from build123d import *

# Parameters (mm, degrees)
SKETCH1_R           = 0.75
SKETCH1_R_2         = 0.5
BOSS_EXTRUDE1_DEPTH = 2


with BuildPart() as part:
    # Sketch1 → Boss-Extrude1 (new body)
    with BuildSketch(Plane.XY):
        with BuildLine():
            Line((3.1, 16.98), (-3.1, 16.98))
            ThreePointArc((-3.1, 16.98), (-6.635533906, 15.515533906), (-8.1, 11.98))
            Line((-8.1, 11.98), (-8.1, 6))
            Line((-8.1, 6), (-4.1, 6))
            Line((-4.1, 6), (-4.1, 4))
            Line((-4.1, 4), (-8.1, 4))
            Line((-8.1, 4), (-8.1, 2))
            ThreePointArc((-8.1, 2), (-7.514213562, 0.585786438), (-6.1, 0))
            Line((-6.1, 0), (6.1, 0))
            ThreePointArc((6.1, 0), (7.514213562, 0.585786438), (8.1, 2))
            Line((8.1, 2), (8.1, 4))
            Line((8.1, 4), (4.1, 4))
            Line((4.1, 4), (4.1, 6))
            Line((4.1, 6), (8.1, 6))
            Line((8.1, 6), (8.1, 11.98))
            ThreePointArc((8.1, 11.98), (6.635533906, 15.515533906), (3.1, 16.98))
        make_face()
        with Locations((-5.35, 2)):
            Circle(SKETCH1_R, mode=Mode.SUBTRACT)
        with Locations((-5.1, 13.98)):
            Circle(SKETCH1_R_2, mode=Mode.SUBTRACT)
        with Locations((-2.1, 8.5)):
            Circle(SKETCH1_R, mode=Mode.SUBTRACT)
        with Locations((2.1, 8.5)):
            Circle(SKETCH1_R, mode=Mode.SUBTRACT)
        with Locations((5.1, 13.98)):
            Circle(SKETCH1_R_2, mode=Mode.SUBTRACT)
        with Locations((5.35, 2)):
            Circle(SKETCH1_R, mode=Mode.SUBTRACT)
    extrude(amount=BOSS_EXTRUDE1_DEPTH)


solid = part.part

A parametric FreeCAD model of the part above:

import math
import FreeCAD as App
import Part
import Sketcher

V = App.Vector

doc = App.newDocument("Part")
body = doc.addObject("PartDesign::Body", "Body")

# Sketch on XY plane
sketch1 = doc.addObject("Sketcher::SketchObject", "Sketch")
body.addObject(sketch1)
sketch1.AttachmentSupport = (doc.XY_Plane, [""])
sketch1.MapMode = "FlatFace"
sketch1.addGeometry([
    Part.LineSegment(V(3.1, 16.98, 0), V(-3.1, 16.98, 0)),  # 0
    Part.ArcOfCircle(Part.Circle(V(-3.1, 11.98, 0), V(0, 0, 1), 5), math.radians(90), math.radians(180)),  # 1
    Part.LineSegment(V(-8.1, 11.98, 0), V(-8.1, 6, 0)),  # 2
    Part.LineSegment(V(-8.1, 6, 0), V(-4.1, 6, 0)),  # 3
    Part.LineSegment(V(-4.1, 6, 0), V(-4.1, 4, 0)),  # 4
    Part.LineSegment(V(-4.1, 4, 0), V(-8.1, 4, 0)),  # 5
    Part.LineSegment(V(-8.1, 4, 0), V(-8.1, 2, 0)),  # 6
    Part.ArcOfCircle(Part.Circle(V(-6.1, 2, 0), V(0, 0, 1), 2), math.radians(-180), math.radians(-90)),  # 7
    Part.LineSegment(V(-6.1, 0, 0), V(6.1, 0, 0)),  # 8
    Part.ArcOfCircle(Part.Circle(V(6.1, 2, 0), V(0, 0, 1), 2), math.radians(-90), math.radians(0)),  # 9
    Part.LineSegment(V(8.1, 2, 0), V(8.1, 4, 0)),  # 10
    Part.LineSegment(V(8.1, 4, 0), V(4.1, 4, 0)),  # 11
    Part.LineSegment(V(4.1, 4, 0), V(4.1, 6, 0)),  # 12
    Part.LineSegment(V(4.1, 6, 0), V(8.1, 6, 0)),  # 13
    Part.LineSegment(V(8.1, 6, 0), V(8.1, 11.98, 0)),  # 14
    Part.ArcOfCircle(Part.Circle(V(3.1, 11.98, 0), V(0, 0, 1), 5), math.radians(0), math.radians(90)),  # 15
    Part.Circle(V(-5.35, 2, 0), V(0, 0, 1), 0.75),  # 16
    Part.Circle(V(5.35, 2, 0), V(0, 0, 1), 0.75),  # 17
    Part.Circle(V(-2.1, 8.5, 0), V(0, 0, 1), 0.75),  # 18
    Part.Circle(V(-5.1, 13.98, 0), V(0, 0, 1), 0.5),  # 19
    Part.Circle(V(2.1, 8.5, 0), V(0, 0, 1), 0.75),  # 20
    Part.Circle(V(5.1, 13.98, 0), V(0, 0, 1), 0.5),  # 21
], False)
sketch1.addConstraint([
    Sketcher.Constraint("Tangent", 0, 2, 1, 1),
    Sketcher.Constraint("Tangent", 1, 2, 2, 1),
    Sketcher.Constraint("Coincident", 2, 2, 3, 1),
    Sketcher.Constraint("Coincident", 3, 2, 4, 1),
    Sketcher.Constraint("Coincident", 4, 2, 5, 1),
    Sketcher.Constraint("Coincident", 5, 2, 6, 1),
    Sketcher.Constraint("Tangent", 6, 2, 7, 1),
    Sketcher.Constraint("Tangent", 7, 2, 8, 1),
    Sketcher.Constraint("Tangent", 8, 2, 9, 1),
    Sketcher.Constraint("Tangent", 9, 2, 10, 1),
    Sketcher.Constraint("Coincident", 10, 2, 11, 1),
    Sketcher.Constraint("Coincident", 11, 2, 12, 1),
    Sketcher.Constraint("Coincident", 12, 2, 13, 1),
    Sketcher.Constraint("Coincident", 13, 2, 14, 1),
    Sketcher.Constraint("Tangent", 14, 2, 15, 1),
    Sketcher.Constraint("Tangent", 15, 2, 0, 1),
    Sketcher.Constraint("Horizontal", 0),
    Sketcher.Constraint("Vertical", 2),
    Sketcher.Constraint("Horizontal", 3),
    Sketcher.Constraint("Vertical", 4),
    Sketcher.Constraint("Horizontal", 5),
    Sketcher.Constraint("Vertical", 6),
    Sketcher.Constraint("Horizontal", 8),
    Sketcher.Constraint("Vertical", 10),
    Sketcher.Constraint("Horizontal", 11),
    Sketcher.Constraint("Vertical", 12),
    Sketcher.Constraint("Horizontal", 13),
    Sketcher.Constraint("Vertical", 14),
    Sketcher.Constraint("Equal", 7, 9),
    Sketcher.Constraint("Equal", 1, 15),
    Sketcher.Constraint("Equal", 16, 17),
    Sketcher.Constraint("Equal", 17, 18),
    Sketcher.Constraint("Equal", 18, 20),
    Sketcher.Constraint("Equal", 19, 21),
    Sketcher.Constraint("Symmetric", 7, 2, 8, 2, -1, 1),
    Sketcher.Constraint("Symmetric", 16, 3, 17, 3, -2),
    Sketcher.Constraint("Symmetric", 18, 3, 20, 3, -2),
    Sketcher.Constraint("Symmetric", 19, 3, 21, 3, -2),
    Sketcher.Constraint("Symmetric", 4, 2, 11, 2, -2),
    Sketcher.Constraint("Symmetric", 2, 2, 13, 2, -2),
    Sketcher.Constraint("Horizontal", 9, 3, 16, 3),
    Sketcher.Constraint("Vertical", 2, 2, 5, 2),
    Sketcher.Constraint("Equal", 4, 6),
    Sketcher.Constraint("Diameter", 19, 1.0),
    Sketcher.Constraint("Radius", 1, 5.0),
    Sketcher.Constraint("Radius", 7, 2.0),
    Sketcher.Constraint("Diameter", 16, 1.5),
    Sketcher.Constraint("DistanceX", 3, 1, 3, 2, 4.0),
    Sketcher.Constraint("DistanceY", 4, 2, 4, 1, 2.0),
    Sketcher.Constraint("DistanceX", 0, 2, 0, 1, 6.2),
    Sketcher.Constraint("DistanceX", 1, 3, 18, 3, 1.0),
    Sketcher.Constraint("DistanceX", 19, 3, 1, 3, 2.0),
    Sketcher.Constraint("DistanceY", 1, 3, 19, 3, 2.0),
    Sketcher.Constraint("DistanceY", 2, 2, 2, 1, 5.98),
    Sketcher.Constraint("DistanceY", -1, 1, 18, 3, 8.5),
    Sketcher.Constraint("DistanceX", 16, 3, 17, 3, 10.7),
])
pad1 = doc.addObject("PartDesign::Pad", "Pad")
body.addObject(pad1)
pad1.Profile = sketch1
pad1.Length = 2

doc.recompute()
